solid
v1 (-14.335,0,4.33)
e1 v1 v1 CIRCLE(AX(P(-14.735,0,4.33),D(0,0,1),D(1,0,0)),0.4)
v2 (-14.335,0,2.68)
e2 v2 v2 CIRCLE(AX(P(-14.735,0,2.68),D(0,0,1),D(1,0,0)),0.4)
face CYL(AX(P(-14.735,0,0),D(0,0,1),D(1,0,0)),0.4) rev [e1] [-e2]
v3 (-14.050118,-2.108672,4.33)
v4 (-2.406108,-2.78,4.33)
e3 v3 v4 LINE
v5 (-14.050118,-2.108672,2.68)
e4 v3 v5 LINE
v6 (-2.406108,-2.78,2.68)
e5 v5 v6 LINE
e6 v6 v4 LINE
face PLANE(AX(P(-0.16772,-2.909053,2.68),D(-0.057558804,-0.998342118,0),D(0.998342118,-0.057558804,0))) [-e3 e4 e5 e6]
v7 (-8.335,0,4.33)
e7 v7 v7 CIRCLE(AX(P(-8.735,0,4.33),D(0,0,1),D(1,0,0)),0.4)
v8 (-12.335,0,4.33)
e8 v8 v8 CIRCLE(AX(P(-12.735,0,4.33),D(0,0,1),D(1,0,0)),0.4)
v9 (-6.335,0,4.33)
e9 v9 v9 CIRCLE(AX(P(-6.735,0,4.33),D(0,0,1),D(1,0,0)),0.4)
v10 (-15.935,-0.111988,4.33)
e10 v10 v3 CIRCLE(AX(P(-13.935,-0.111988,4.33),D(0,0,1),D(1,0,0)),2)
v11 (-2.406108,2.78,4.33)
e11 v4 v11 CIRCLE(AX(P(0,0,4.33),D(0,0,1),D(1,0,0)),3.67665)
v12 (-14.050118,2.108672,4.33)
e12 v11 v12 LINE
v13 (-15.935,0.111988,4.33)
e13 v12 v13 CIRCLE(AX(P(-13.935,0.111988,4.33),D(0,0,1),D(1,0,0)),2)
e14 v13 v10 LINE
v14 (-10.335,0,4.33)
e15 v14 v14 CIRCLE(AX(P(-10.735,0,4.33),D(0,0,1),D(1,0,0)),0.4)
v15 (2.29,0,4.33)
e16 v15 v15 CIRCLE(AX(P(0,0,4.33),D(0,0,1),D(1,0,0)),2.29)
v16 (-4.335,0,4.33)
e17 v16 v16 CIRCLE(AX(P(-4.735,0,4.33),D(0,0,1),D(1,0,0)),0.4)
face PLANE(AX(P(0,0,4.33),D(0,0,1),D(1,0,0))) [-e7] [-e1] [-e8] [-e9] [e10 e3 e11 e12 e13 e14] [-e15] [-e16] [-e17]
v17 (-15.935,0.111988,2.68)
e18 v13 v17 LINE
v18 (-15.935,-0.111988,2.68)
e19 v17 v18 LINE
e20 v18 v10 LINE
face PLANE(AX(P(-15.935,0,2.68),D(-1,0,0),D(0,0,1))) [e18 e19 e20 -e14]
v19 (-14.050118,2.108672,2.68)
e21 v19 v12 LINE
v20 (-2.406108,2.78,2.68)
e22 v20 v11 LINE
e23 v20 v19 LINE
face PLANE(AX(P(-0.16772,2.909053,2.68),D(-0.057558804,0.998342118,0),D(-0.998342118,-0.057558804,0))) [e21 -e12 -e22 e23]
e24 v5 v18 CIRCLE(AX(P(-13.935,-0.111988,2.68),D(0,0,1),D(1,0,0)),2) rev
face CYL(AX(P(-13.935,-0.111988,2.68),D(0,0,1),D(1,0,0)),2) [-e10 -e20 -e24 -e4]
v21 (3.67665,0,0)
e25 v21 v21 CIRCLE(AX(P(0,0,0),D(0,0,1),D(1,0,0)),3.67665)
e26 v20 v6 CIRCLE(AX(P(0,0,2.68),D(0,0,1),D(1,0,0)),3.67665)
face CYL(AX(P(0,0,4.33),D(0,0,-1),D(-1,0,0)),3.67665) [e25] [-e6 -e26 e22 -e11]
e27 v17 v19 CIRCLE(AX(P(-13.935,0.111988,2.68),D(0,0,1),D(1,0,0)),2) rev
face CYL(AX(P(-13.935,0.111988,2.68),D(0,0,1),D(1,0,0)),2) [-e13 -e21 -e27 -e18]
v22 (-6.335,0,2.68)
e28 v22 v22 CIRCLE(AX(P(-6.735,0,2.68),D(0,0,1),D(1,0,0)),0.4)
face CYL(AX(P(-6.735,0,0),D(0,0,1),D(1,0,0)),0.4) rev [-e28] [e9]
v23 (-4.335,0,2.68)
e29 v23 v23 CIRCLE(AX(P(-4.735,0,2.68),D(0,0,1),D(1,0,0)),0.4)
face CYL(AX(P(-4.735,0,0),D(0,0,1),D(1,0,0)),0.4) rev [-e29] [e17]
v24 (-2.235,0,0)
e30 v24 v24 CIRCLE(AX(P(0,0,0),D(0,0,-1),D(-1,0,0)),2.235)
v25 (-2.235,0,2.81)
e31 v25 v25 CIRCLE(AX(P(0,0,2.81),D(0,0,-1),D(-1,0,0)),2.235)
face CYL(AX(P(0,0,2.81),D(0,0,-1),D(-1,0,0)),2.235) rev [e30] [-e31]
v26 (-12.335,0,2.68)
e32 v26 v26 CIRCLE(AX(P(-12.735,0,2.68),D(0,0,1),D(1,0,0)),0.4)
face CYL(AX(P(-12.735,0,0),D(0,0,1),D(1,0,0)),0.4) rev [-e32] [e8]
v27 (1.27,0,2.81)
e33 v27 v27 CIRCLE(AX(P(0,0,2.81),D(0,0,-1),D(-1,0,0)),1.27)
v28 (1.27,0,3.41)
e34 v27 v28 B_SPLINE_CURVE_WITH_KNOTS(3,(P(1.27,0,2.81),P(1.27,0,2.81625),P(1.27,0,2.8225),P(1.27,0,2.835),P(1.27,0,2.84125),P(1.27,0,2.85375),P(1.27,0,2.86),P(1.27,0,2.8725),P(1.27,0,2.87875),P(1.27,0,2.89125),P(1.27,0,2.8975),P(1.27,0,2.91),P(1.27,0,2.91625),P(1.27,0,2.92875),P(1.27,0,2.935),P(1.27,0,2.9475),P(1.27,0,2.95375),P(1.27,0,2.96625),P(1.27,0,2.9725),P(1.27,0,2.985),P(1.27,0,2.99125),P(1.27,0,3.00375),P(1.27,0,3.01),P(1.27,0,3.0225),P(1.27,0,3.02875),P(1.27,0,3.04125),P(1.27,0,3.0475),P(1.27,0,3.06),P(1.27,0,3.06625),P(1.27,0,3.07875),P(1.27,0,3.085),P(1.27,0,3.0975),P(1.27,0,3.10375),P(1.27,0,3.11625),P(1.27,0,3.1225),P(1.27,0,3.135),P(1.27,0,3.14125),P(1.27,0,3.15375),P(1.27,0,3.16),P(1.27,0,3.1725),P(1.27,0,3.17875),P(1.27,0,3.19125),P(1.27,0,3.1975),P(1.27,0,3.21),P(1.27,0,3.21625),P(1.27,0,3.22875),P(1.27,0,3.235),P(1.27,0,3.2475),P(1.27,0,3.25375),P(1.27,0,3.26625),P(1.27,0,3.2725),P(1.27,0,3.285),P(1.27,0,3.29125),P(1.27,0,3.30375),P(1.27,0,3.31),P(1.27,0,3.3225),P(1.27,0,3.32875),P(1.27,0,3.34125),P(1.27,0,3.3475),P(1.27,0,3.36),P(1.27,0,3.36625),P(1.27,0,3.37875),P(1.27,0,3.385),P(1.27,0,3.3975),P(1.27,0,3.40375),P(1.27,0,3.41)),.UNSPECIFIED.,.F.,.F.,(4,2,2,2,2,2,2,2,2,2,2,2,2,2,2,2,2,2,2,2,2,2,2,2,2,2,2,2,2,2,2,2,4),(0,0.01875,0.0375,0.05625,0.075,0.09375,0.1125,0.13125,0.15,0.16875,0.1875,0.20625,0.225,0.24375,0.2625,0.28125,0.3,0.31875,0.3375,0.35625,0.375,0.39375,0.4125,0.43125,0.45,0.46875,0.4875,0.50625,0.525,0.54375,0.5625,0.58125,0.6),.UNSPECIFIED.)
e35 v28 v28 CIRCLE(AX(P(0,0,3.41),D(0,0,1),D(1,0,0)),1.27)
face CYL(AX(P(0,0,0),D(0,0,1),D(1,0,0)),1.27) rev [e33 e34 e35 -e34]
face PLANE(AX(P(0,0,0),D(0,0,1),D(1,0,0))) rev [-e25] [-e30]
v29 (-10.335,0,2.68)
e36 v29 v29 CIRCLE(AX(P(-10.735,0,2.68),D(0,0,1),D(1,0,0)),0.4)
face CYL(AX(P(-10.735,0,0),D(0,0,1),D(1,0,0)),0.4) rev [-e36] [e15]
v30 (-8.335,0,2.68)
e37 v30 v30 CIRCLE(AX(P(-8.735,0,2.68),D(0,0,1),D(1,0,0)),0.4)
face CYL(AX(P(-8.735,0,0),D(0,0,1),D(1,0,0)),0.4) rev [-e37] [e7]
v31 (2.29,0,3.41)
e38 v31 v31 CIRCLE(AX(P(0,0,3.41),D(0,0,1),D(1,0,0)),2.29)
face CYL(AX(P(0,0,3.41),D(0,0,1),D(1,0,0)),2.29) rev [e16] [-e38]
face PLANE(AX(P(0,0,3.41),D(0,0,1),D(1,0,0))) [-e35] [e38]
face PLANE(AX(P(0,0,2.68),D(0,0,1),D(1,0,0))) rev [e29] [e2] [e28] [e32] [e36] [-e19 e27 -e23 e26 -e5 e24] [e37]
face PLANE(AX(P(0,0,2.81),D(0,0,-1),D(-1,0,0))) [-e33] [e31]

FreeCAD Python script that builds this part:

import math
import FreeCAD as App
import Part
import Sketcher
from FreeCAD import Vector


def edges_at(feature, points):
    """Names of the edges that pass closest to the given points."""
    edges = feature.Shape.Edges
    near = lambda p: min(range(len(edges)), key=lambda i: edges[i].distToShape(Part.Vertex(*p))[0])
    return sorted({f"Edge{near(p) + 1}" for p in points})

doc = App.newDocument("Part")
params = doc.addObject("Spreadsheet::Sheet", "Params")
for row, (alias, value) in enumerate([
    ("pad1_length", "4.33 mm"),
    ("sketch2_diameter", "4.47 mm"),
    ("pocket1_length", "2.81 mm"),
    ("sketch3_diameter", "4.58 mm"),
    ("pocket2_length", "0.92 mm"),
    ("sketch4_diameter", "2.54 mm"),
    ("sketch5_height", "4 mm"),
    ("pad2_length", "1.65 mm"),
    ("fillet_radius", "2 mm"),
    ("sketch6_diameter", "0.8 mm"),
], start=1):
    params.set(f"A{row}", alias)
    params.set(f"B{row}", "=" + value)
    params.setAlias(f"B{row}", alias)

body = doc.addObject("PartDesign::Body", "Body")

sketch1 = body.newObject("Sketcher::SketchObject", "Sketch")
sketch1.AttachmentSupport = (doc.getObject("XY_Plane"), [""])
sketch1.MapMode = "FlatFace"
sketch1.addGeometry(Part.Circle(Vector(0, 0, 0), Vector(0, 0, 1), 3.67665), False)
sketch1.addConstraint(Sketcher.Constraint("Coincident", 0, 3, -1, 1))
sketch1.addConstraint(Sketcher.Constraint("Diameter", 0, 7.3533))
pad1 = body.newObject("PartDesign::Pad", "Pad")
pad1.Profile = sketch1
pad1.setExpression("Length", "Params.pad1_length")

sketch2 = body.newObject("Sketcher::SketchObject", "Sketch001")
sketch2.AttachmentSupport = (doc.getObject("XY_Plane"), [""])
sketch2.MapMode = "FlatFace"
sketch2.addGeometry(Part.Circle(Vector(0, 0, 0), Vector(0, 0, 1), 2.235), False)
sketch2.addConstraint(Sketcher.Constraint("Coincident", 0, 3, -1, 1))
sketch2.addConstraint(Sketcher.Constraint("Diameter", 0, 4.47))
sketch2.setExpression("Constraints[1]", "Params.sketch2_diameter")
pocket1 = body.newObject("PartDesign::Pocket", "Pocket")
pocket1.Profile = sketch2
pocket1.setExpression("Length", "Params.pocket1_length")
pocket1.Reversed = True

sketch3 = body.newObject("Sketcher::SketchObject", "Sketch002")
sketch3.AttachmentSupport = (doc.getObject("XY_Plane"), [""])
sketch3.MapMode = "FlatFace"
sketch3.AttachmentOffset = App.Placement(Vector(0, 0, 4.33), App.Rotation())
sketch3.addGeometry(Part.Circle(Vector(0, 0, 0), Vector(0, 0, 1), 2.29), False)
sketch3.addConstraint(Sketcher.Constraint("Coincident", 0, 3, -1, 1))
sketch3.addConstraint(Sketcher.Constraint("Diameter", 0, 4.58))
sketch3.setExpression("Constraints[1]", "Params.sketch3_diameter")
pocket2 = body.newObject("PartDesign::Pocket", "Pocket001")
pocket2.Profile = sketch3
pocket2.setExpression("Length", "Params.pocket2_length")

sketch4 = body.newObject("Sketcher::SketchObject", "Sketch003")
sketch4.AttachmentSupport = (doc.getObject("XY_Plane"), [""])
sketch4.MapMode = "FlatFace"
sketch4.AttachmentOffset = App.Placement(Vector(0, 0, 3.41), App.Rotation())
sketch4.addGeometry(Part.Circle(Vector(0, 0, 0), Vector(0, 0, 1), 1.27), False)
sketch4.addConstraint(Sketcher.Constraint("Coincident", 0, 3, -1, 1))
sketch4.addConstraint(Sketcher.Constraint("Diameter", 0, 2.54))
sketch4.setExpression("Constraints[1]", "Params.sketch4_diameter")
pocket3 = body.newObject("PartDesign::Pocket", "Pocket002")
pocket3.Profile = sketch4
pocket3.Type = "ThroughAll"

sketch5 = body.newObject("Sketcher::SketchObject", "Sketch004")
sketch5.AttachmentSupport = (doc.getObject("XY_Plane"), [""])
sketch5.MapMode = "FlatFace"
sketch5.AttachmentOffset = App.Placement(Vector(0, 0, 2.68), App.Rotation())
sketch5.addGeometry(Part.ArcOfCircle(Part.Circle(Vector(0, 0, 0), Vector(0, 0, 1), 3.67665), math.radians(130.876399), math.radians(229.123601)), False)
sketch5.addGeometry(Part.LineSegment(Vector(-2.406108, 2.78, 0), Vector(-15.935, 2, 0)), False)
sketch5.addGeometry(Part.LineSegment(Vector(-15.935, 2, 0), Vector(-15.935, -2, 0)), False)
sketch5.addGeometry(Part.LineSegment(Vector(-15.935, -2, 0), Vector(-2.406108, -2.78, 0)), False)
sketch5.addConstraint(Sketcher.Constraint("Coincident", 0, 1, 1, 1))
sketch5.addConstraint(Sketcher.Constraint("Coincident", 1, 2, 2, 1))
sketch5.addConstraint(Sketcher.Constraint("Coincident", 2, 2, 3, 1))
sketch5.addConstraint(Sketcher.Constraint("Coincident", 3, 2, 0, 2))
sketch5.addConstraint(Sketcher.Constraint("Vertical", 2))
sketch5.addConstraint(Sketcher.Constraint("Coincident", 0, 3, -1, 1))
sketch5.addConstraint(Sketcher.Constraint("Vertical", 0, 1, 3, 2))
sketch5.addConstraint(Sketcher.Constraint("Equal", 1, 3))
sketch5.addConstraint(Sketcher.Constraint("DistanceY", 2, 2, 2, 1, 4.0))
sketch5.addConstraint(Sketcher.Constraint("DistanceY", -1, 1, 0, 1, 2.78))
sketch5.addConstraint(Sketcher.Constraint("Radius", 0, 3.67665))
sketch5.addConstraint(Sketcher.Constraint("DistanceX", 1, 2, -1, 1, 15.935))
sketch5.setExpression("Constraints[8]", "Params.sketch5_height")
pad2 = body.newObject("PartDesign::Pad", "Pad001")
pad2.Profile = sketch5
pad2.setExpression("Length", "Params.pad2_length")
doc.recompute()

fillet = body.newObject("PartDesign::Fillet", "Fillet")
fillet.Base = (pad2, edges_at(pad2, [(-15.935, -2, 3.505), (-15.935, 2, 3.505)]))
fillet.setExpression("Radius", "Params.fillet_radius")

sketch6 = body.newObject("Sketcher::SketchObject", "Sketch005")
sketch6.AttachmentSupport = (doc.getObject("XY_Plane"), [""])
sketch6.MapMode = "FlatFace"
sketch6.AttachmentOffset = App.Placement(Vector(0, 0, 4.33), App.Rotation())
sketch6.addGeometry(Part.Circle(Vector(-14.735, 0, 0), Vector(0, 0, 1), 0.4), False)
sketch6.addGeometry(Part.Circle(Vector(-12.735, 0, 0), Vector(0, 0, 1), 0.4), False)
sketch6.addGeometry(Part.Circle(Vector(-10.735, 0, 0), Vector(0, 0, 1), 0.4), False)
sketch6.addGeometry(Part.Circle(Vector(-8.735, 0, 0), Vector(0, 0, 1), 0.4), False)
sketch6.addGeometry(Part.Circle(Vector(-6.735, 0, 0), Vector(0, 0, 1), 0.4), False)
sketch6.addGeometry(Part.Circle(Vector(-4.735, 0, 0), Vector(0, 0, 1), 0.4), False)
sketch6.addConstraint(Sketcher.Constraint("Equal", 0, 1))
sketch6.addConstraint(Sketcher.Constraint("Equal", 1, 2))
sketch6.addConstraint(Sketcher.Constraint("Equal", 2, 3))
sketch6.addConstraint(Sketcher.Constraint("Equal", 3, 4))
sketch6.addConstraint(Sketcher.Constraint("Equal", 4, 5))
sketch6.addConstraint(Sketcher.Constraint("PointOnObject", 0, 3, -1))
sketch6.addConstraint(Sketcher.Constraint("PointOnObject", 1, 3, -1))
sketch6.addConstraint(Sketcher.Constraint("PointOnObject", 2, 3, -1))
sketch6.addConstraint(Sketcher.Constraint("PointOnObject", 3, 3, -1))
sketch6.addConstraint(Sketcher.Constraint("PointOnObject", 4, 3, -1))
sketch6.addConstraint(Sketcher.Constraint("PointOnObject", 5, 3, -1))
sketch6.addConstraint(Sketcher.Constraint("Diameter", 0, 0.8))
sketch6.addConstraint(Sketcher.Constraint("DistanceX", 0, 3, 1, 3, 2.0))
sketch6.addConstraint(Sketcher.Constraint("DistanceX", 1, 3, 2, 3, 2.0))
sketch6.addConstraint(Sketcher.Constraint("DistanceX", 2, 3, 3, 3, 2.0))
sketch6.addConstraint(Sketcher.Constraint("DistanceX", 3, 3, 4, 3, 2.0))
sketch6.addConstraint(Sketcher.Constraint("DistanceX", 4, 3, 5, 3, 2.0))
sketch6.addConstraint(Sketcher.Constraint("DistanceX", 0, 3, -1, 1, 14.735))
sketch6.setExpression("Constraints[11]", "Params.sketch6_diameter")
pocket4 = body.newObject("PartDesign::Pocket", "Pocket003")
pocket4.Profile = sketch6
pocket4.Type = "ThroughAll"

doc.recompute()
